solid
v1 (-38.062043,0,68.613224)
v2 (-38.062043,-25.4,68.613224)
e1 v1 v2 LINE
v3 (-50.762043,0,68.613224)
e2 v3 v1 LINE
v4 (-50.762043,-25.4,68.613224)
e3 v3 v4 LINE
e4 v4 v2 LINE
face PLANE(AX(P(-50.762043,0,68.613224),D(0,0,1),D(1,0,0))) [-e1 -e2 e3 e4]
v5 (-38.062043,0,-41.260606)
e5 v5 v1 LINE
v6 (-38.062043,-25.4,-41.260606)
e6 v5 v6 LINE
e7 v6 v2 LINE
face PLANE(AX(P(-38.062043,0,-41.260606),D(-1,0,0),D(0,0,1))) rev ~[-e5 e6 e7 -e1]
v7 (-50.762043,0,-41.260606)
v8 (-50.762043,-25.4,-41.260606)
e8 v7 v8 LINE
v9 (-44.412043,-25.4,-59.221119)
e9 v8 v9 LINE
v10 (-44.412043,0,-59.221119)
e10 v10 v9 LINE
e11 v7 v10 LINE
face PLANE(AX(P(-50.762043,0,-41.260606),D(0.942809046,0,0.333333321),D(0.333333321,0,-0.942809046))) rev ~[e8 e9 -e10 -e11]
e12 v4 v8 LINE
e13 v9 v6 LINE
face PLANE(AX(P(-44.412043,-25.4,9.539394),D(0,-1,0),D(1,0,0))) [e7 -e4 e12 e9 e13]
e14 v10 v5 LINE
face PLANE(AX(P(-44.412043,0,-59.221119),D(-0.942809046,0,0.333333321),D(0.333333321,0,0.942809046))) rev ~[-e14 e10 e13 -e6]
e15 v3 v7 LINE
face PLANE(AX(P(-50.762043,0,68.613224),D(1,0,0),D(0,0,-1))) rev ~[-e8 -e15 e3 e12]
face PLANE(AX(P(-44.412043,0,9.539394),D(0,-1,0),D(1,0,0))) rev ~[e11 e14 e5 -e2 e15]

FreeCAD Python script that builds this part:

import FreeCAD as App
import Part
import Sketcher

V = App.Vector
Q = App.Units.Quantity


def add_polygon(sketch, points):
    """Adds a closed chain of lines whose ends are joined by coincident constraints."""
    first, n = sketch.GeometryCount, len(points)
    for a, b in zip(points, points[1:] + points[:1]):
        sketch.addGeometry(Part.LineSegment(App.Vector(*a, 0), App.Vector(*b, 0)), False)
    for i in range(n):
        sketch.addConstraint(Sketcher.Constraint("Coincident", first + i, 2, first + (i + 1) % n, 1))

doc = App.newDocument("Part")
body = doc.addObject("PartDesign::Body", "Body")

# Sketch on XZ plane
sketch1 = doc.addObject("Sketcher::SketchObject", "Sketch")
body.addObject(sketch1)
sketch1.AttachmentSupport = (doc.XZ_Plane, [""])
sketch1.MapMode = "FlatFace"
add_polygon(sketch1, [(-38.062043, -41.260606), (-38.062043, 68.613224), (-50.762043, 68.613224), (-50.762043, -41.260606), (-44.412043, -59.221119)])  # lines 0-4
sketch1.addConstraint(Sketcher.Constraint("Vertical", 0))
sketch1.addConstraint(Sketcher.Constraint("Horizontal", 1))
sketch1.addConstraint(Sketcher.Constraint("Vertical", 2))
sketch1.addConstraint(Sketcher.Constraint("Horizontal", 2, 2, 4, 2))
sketch1.addConstraint(Sketcher.Constraint("Equal", 3, 4))
sketch1.addConstraint(Sketcher.Constraint("DistanceX", 1, 2, 1, 1, Q("0.5 in")))
sketch1.addConstraint(Sketcher.Constraint("Distance", 3, Q("0.75 in")))
sketch1.addConstraint(Sketcher.Constraint("DistanceY", 0, 1, 0, 2, 109.87383))
sketch1.addConstraint(Sketcher.Constraint("DistanceY", 3, 2, -1, 1, 59.221119))
sketch1.addConstraint(Sketcher.Constraint("DistanceX", 0, 2, -1, 1, 38.062043))
pad1 = doc.addObject("PartDesign::Pad", "Pad")
body.addObject(pad1)
pad1.Profile = sketch1
pad1.Length = Q("1 in")

doc.recompute()
